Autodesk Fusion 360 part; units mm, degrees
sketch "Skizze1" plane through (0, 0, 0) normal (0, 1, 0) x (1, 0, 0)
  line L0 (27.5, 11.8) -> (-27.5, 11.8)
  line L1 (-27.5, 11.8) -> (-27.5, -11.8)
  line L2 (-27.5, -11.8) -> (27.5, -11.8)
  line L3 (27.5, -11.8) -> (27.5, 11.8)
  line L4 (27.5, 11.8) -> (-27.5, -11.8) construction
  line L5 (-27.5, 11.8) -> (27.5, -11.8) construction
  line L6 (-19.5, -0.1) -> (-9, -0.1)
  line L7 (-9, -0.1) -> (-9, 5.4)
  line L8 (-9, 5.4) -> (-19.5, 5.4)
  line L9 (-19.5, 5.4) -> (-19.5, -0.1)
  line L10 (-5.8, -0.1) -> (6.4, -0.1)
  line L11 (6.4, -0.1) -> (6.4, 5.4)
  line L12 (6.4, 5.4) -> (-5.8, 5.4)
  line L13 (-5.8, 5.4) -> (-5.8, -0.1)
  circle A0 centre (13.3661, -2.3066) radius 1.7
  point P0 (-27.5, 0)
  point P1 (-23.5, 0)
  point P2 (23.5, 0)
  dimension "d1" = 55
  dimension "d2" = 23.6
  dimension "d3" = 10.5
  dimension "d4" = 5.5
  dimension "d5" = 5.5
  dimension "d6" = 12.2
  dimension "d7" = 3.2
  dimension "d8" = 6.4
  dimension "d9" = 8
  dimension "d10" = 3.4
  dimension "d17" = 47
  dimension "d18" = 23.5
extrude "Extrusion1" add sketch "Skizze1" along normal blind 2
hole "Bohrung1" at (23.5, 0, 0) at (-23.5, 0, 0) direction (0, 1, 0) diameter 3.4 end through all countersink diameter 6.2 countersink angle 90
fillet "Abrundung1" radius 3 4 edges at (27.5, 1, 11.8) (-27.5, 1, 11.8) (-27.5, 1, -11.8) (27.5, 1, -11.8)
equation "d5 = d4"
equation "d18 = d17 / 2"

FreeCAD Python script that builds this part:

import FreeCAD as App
import Part
import Sketcher
from FreeCAD import Vector
Q = App.Units.Quantity


def edges_at(feature, points):
    """Names of the edges that pass closest to the given points."""
    edges = feature.Shape.Edges
    near = lambda p: min(range(len(edges)), key=lambda i: edges[i].distToShape(Part.Vertex(*p))[0])
    return sorted({f"Edge{near(p) + 1}" for p in points})

doc = App.newDocument("Part")
body = doc.addObject("PartDesign::Body", "Body")

sketch1 = body.newObject("Sketcher::SketchObject", "Sketch")
sketch1.AttachmentSupport = (doc.getObject("XZ_Plane"), [""])
sketch1.MapMode = "FlatFace"
sketch1.addGeometry([
    Part.LineSegment(Vector(27.5, 11.8, 0), Vector(27.5, -11.8, 0)),
    Part.LineSegment(Vector(27.5, -11.8, 0), Vector(-27.5, -11.8, 0)),
    Part.LineSegment(Vector(-27.5, -11.8, 0), Vector(-27.5, 11.8, 0)),
    Part.LineSegment(Vector(-27.5, 11.8, 0), Vector(27.5, 11.8, 0)),
    Part.Circle(Vector(13.3661, 2.3066, 0), Vector(0, 0, 1), 1.7),
    Part.LineSegment(Vector(-9, 0.1, 0), Vector(-19.5, 0.1, 0)),
    Part.LineSegment(Vector(-19.5, 0.1, 0), Vector(-19.5, -5.4, 0)),
    Part.LineSegment(Vector(-19.5, -5.4, 0), Vector(-9, -5.4, 0)),
    Part.LineSegment(Vector(-9, -5.4, 0), Vector(-9, 0.1, 0)),
    Part.LineSegment(Vector(6.4, 0.1, 0), Vector(-5.8, 0.1, 0)),
    Part.LineSegment(Vector(-5.8, 0.1, 0), Vector(-5.8, -5.4, 0)),
    Part.LineSegment(Vector(-5.8, -5.4, 0), Vector(6.4, -5.4, 0)),
    Part.LineSegment(Vector(6.4, -5.4, 0), Vector(6.4, 0.1, 0)),
], False)
sketch1.addConstraint([
    Sketcher.Constraint("Coincident", 0, 2, 1, 1),
    Sketcher.Constraint("Coincident", 1, 2, 2, 1),
    Sketcher.Constraint("Coincident", 2, 2, 3, 1),
    Sketcher.Constraint("Coincident", 3, 2, 0, 1),
    Sketcher.Constraint("Coincident", 5, 2, 6, 1),
    Sketcher.Constraint("Coincident", 6, 2, 7, 1),
    Sketcher.Constraint("Coincident", 7, 2, 8, 1),
    Sketcher.Constraint("Coincident", 8, 2, 5, 1),
    Sketcher.Constraint("Coincident", 9, 2, 10, 1),
    Sketcher.Constraint("Coincident", 10, 2, 11, 1),
    Sketcher.Constraint("Coincident", 11, 2, 12, 1),
    Sketcher.Constraint("Coincident", 12, 2, 9, 1),
    Sketcher.Constraint("Vertical", 0),
    Sketcher.Constraint("Horizontal", 1),
    Sketcher.Constraint("Vertical", 2),
    Sketcher.Constraint("Horizontal", 3),
    Sketcher.Constraint("Horizontal", 5),
    Sketcher.Constraint("Vertical", 6),
    Sketcher.Constraint("Horizontal", 7),
    Sketcher.Constraint("Vertical", 8),
    Sketcher.Constraint("Horizontal", 9),
    Sketcher.Constraint("Vertical", 10),
    Sketcher.Constraint("Horizontal", 11),
    Sketcher.Constraint("Vertical", 12),
    Sketcher.Constraint("Symmetric", 0, 2, 2, 2, -1, 1),
    Sketcher.Constraint("Horizontal", 8, 2, 9, 2),
    Sketcher.Constraint("Horizontal", 7, 2, 10, 2),
    Sketcher.Constraint("Diameter", 4, Q("3.4 mm")),
    Sketcher.Constraint("DistanceX", 1, 2, 1, 1, Q("55 mm")),
    Sketcher.Constraint("DistanceX", 5, 2, 5, 1, Q("10.5 mm")),
    Sketcher.Constraint("DistanceX", 9, 2, 9, 1, Q("12.2 mm")),
    Sketcher.Constraint("DistanceY", 0, 2, 0, 1, Q("23.6 mm")),
    Sketcher.Constraint("DistanceY", 6, 2, 6, 1, Q("5.5 mm")),
    Sketcher.Constraint("DistanceX", 2, 2, 5, 2, Q("8 mm")),
    Sketcher.Constraint("DistanceX", -1, 1, 11, 2, Q("6.4 mm")),
    Sketcher.Constraint("DistanceY", 1, 2, 6, 2, Q("6.4 mm")),
    Sketcher.Constraint("DistanceX", -1, 1, 4, 3, Q("13.366 mm")),
    Sketcher.Constraint("DistanceY", -1, 1, 4, 3, Q("2.3066 mm")),
])
pad1 = body.newObject("PartDesign::Pad", "Pad")
pad1.Profile = sketch1
pad1.Length = 2
pad1.Reversed = True

sketch2 = body.newObject("Sketcher::SketchObject", "Sketch001")
sketch2.AttachmentSupport = (doc.getObject("XZ_Plane"), [""])
sketch2.MapMode = "FlatFace"
sketch2.addGeometry([
    Part.Circle(Vector(23.5, 0, 0), Vector(0, 0, 1), 1.7),
    Part.Circle(Vector(-23.5, 0, 0), Vector(0, 0, 1), 1.7),
], False)
sketch2.addConstraint([
    Sketcher.Constraint("Equal", 0, 1),
    Sketcher.Constraint("Symmetric", 0, 3, 1, 3, -1, 1),
    Sketcher.Constraint("PointOnObject", 0, 3, -1),
    Sketcher.Constraint("Diameter", 0, Q("3.4 mm")),
    Sketcher.Constraint("DistanceX", 1, 3, 0, 3, Q("47 mm")),
])
doc.recompute()
hole = body.newObject("PartDesign::Hole", "Hole")
hole.Profile = sketch2
hole.ThreadType = "None"
hole.Diameter = 3.4
hole.DepthType = "ThroughAll"
hole.HoleCutType = "Countersink"
hole.HoleCutDiameter = 6.2
hole.HoleCutCountersinkAngle = 90
doc.recompute()

fillet = body.newObject("PartDesign::Fillet", "Fillet")
fillet.Base = (hole, edges_at(hole, [
    (27.5, 1, 11.8),
    (-27.5, 1, 11.8),
    (-27.5, 1, -11.8),
    (27.5, 1, -11.8),
]))
fillet.Radius = 3

doc.recompute()
